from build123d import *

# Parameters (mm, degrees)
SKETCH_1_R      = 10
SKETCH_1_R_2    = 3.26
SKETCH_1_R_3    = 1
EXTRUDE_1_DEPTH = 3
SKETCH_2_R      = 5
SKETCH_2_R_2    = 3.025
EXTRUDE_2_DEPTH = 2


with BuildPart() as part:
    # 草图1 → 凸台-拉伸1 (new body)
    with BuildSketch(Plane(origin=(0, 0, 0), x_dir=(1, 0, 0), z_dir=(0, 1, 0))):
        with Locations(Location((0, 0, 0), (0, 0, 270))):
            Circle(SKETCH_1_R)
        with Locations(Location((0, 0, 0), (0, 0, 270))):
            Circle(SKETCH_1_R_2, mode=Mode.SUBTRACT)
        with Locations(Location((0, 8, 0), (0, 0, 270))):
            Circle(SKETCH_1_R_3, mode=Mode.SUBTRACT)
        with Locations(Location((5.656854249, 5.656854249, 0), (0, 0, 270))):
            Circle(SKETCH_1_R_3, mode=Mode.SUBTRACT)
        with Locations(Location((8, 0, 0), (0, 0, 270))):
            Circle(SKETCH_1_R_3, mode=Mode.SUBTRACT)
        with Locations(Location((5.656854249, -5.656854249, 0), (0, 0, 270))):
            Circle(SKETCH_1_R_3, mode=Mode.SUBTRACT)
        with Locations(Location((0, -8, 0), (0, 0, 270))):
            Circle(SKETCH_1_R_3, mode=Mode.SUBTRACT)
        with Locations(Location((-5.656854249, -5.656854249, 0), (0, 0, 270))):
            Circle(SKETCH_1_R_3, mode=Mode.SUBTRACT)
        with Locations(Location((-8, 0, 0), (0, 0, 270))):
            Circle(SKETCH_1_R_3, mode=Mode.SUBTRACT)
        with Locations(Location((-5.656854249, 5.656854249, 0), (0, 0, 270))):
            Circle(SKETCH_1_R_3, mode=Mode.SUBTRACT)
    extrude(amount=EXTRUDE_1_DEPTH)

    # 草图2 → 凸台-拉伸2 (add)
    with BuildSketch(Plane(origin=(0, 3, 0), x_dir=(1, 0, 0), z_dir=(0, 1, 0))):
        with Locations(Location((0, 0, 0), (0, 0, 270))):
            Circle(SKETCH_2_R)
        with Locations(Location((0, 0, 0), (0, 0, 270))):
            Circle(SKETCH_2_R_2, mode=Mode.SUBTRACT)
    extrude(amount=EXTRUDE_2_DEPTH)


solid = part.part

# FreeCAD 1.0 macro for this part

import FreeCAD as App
import Part
import Sketcher
from FreeCAD import Vector
Q = App.Units.Quantity

doc = App.newDocument("Part")
body = doc.addObject("PartDesign::Body", "Body")

# Sketch on XZ plane
sketch1 = body.newObject("Sketcher::SketchObject", "Sketch")
sketch1.AttachmentSupport = (doc.getObject("XZ_Plane"), [""])
sketch1.MapMode = "FlatFace"
sketch1.addGeometry(Part.Circle(Vector(0, 0, 0), Vector(0, 0, 1), 10), False)
sketch1.addGeometry(Part.Circle(Vector(-5.7, -5.7, 0), Vector(0, 0, 1), 1), False)
sketch1.addGeometry(Part.Circle(Vector(0, -8, 0), Vector(0, 0, 1), 1), False)
sketch1.addGeometry(Part.Circle(Vector(-8, 0, 0), Vector(0, 0, 1), 1), False)
sketch1.addGeometry(Part.Circle(Vector(-5.7, 5.7, 0), Vector(0, 0, 1), 1), False)
sketch1.addGeometry(Part.Circle(Vector(5.7, -5.7, 0), Vector(0, 0, 1), 1), False)
sketch1.addGeometry(Part.Circle(Vector(8, 0, 0), Vector(0, 0, 1), 1), False)
sketch1.addGeometry(Part.Circle(Vector(0, 0, 0), Vector(0, 0, 1), 3.3), False)
sketch1.addGeometry(Part.Circle(Vector(0, 8, 0), Vector(0, 0, 1), 1), False)
sketch1.addGeometry(Part.Circle(Vector(5.7, 5.7, 0), Vector(0, 0, 1), 1), False)
sketch1.addConstraint(Sketcher.Constraint("Coincident", 0, 3, -1, 1))
sketch1.addConstraint(Sketcher.Constraint("Coincident", 7, 3, -1, 1))
sketch1.addConstraint(Sketcher.Constraint("Equal", 1, 2))
sketch1.addConstraint(Sketcher.Constraint("Equal", 2, 3))
sketch1.addConstraint(Sketcher.Constraint("Equal", 3, 4))
sketch1.addConstraint(Sketcher.Constraint("Equal", 4, 5))
sketch1.addConstraint(Sketcher.Constraint("Equal", 5, 6))
sketch1.addConstraint(Sketcher.Constraint("Equal", 6, 8))
sketch1.addConstraint(Sketcher.Constraint("Equal", 8, 9))
sketch1.addConstraint(Sketcher.Constraint("Symmetric", 4, 3, 5, 3, -1, 1))
sketch1.addConstraint(Sketcher.Constraint("Symmetric", 3, 3, 6, 3, -1, 1))
sketch1.addConstraint(Sketcher.Constraint("Symmetric", 2, 3, 8, 3, -1, 1))
sketch1.addConstraint(Sketcher.Constraint("Symmetric", 1, 3, 9, 3, -1, 1))
sketch1.addConstraint(Sketcher.Constraint("Symmetric", 1, 3, 5, 3, -2))
sketch1.addConstraint(Sketcher.Constraint("PointOnObject", 2, 3, -2))
sketch1.addConstraint(Sketcher.Constraint("PointOnObject", 3, 3, -1))
sketch1.addConstraint(Sketcher.Constraint("Diameter", 0, Q("20 mm")))
sketch1.addConstraint(Sketcher.Constraint("Diameter", 1, Q("2 mm")))
sketch1.addConstraint(Sketcher.Constraint("Diameter", 7, Q("6.52 mm")))
sketch1.addConstraint(Sketcher.Constraint("DistanceY", 2, 3, -1, 1, Q("8 mm")))
sketch1.addConstraint(Sketcher.Constraint("DistanceX", 3, 3, -1, 1, Q("8 mm")))
sketch1.addConstraint(Sketcher.Constraint("DistanceY", 1, 3, 4, 3, Q("11.313708 mm")))
sketch1.addConstraint(Sketcher.Constraint("DistanceX", 1, 3, 5, 3, Q("11.313708 mm")))
pad1 = body.newObject("PartDesign::Pad", "Pad")
pad1.Profile = sketch1
pad1.Length = 3
pad1.Reversed = True

# Sketch on XZ plane
sketch2 = body.newObject("Sketcher::SketchObject", "Sketch001")
sketch2.AttachmentSupport = (doc.getObject("XZ_Plane"), [""])
sketch2.MapMode = "FlatFace"
sketch2.AttachmentOffset = App.Placement(Vector(0, 0, -3), App.Rotation())
sketch2.addGeometry(Part.Circle(Vector(0, 0, 0), Vector(0, 0, 1), 5), False)
sketch2.addGeometry(Part.Circle(Vector(0, 0, 0), Vector(0, 0, 1), 3), False)
sketch2.addConstraint(Sketcher.Constraint("Coincident", 0, 3, -1, 1))
sketch2.addConstraint(Sketcher.Constraint("Coincident", 1, 3, -1, 1))
sketch2.addConstraint(Sketcher.Constraint("Diameter", 0, Q("10 mm")))
sketch2.addConstraint(Sketcher.Constraint("Diameter", 1, Q("6.05 mm")))
pad2 = body.newObject("PartDesign::Pad", "Pad001")
pad2.Profile = sketch2
pad2.Length = 2
pad2.Reversed = True

doc.recompute()
